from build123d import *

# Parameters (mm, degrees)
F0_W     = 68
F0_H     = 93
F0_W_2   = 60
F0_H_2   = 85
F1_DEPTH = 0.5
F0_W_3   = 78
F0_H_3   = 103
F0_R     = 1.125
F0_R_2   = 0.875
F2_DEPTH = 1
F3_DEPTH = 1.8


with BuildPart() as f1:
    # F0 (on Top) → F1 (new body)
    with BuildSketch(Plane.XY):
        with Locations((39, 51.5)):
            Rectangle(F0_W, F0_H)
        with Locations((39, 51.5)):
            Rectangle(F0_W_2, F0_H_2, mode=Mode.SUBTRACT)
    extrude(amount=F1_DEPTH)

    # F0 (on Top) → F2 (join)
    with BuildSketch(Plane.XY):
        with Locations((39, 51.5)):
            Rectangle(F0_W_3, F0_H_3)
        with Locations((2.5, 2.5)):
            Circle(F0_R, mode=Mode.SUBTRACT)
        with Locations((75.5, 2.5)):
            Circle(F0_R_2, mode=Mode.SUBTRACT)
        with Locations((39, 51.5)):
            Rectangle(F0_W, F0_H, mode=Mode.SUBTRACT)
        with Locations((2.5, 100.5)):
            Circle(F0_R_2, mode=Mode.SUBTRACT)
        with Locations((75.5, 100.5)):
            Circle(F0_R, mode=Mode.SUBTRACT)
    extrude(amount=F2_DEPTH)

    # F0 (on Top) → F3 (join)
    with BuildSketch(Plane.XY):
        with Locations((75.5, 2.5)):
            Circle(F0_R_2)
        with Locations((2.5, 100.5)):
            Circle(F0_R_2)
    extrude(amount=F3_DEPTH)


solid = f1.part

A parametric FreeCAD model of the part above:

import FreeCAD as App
import Part
import Sketcher
from FreeCAD import Vector
Q = App.Units.Quantity


def add_polygon(sketch, points):
    """Adds a closed chain of lines whose ends are joined by coincident constraints."""
    first, n = sketch.GeometryCount, len(points)
    for a, b in zip(points, points[1:] + points[:1]):
        sketch.addGeometry(Part.LineSegment(App.Vector(*a, 0), App.Vector(*b, 0)), False)
    for i in range(n):
        sketch.addConstraint(Sketcher.Constraint("Coincident", first + i, 2, first + (i + 1) % n, 1))

doc = App.newDocument("Part")
params = doc.addObject("Spreadsheet::Sheet", "Params")
for row, (alias, value) in enumerate([
    ("sketch1_width", "68 mm"),
    ("sketch1_width2", "60 mm"),
    ("sketch1_height", "93 mm"),
    ("sketch1_height2", "85 mm"),
    ("pad1_length", "0.5 mm"),
    ("sketch2_diameter", "2.25 mm"),
    ("sketch2_diameter2", "1.75 mm"),
    ("sketch2_width", "78 mm"),
    ("sketch2_width2", "68 mm"),
    ("sketch2_height", "103 mm"),
    ("pad2_length", "1 mm"),
    ("sketch3_diameter", "1.75 mm"),
    ("pad3_length", "1.8 mm"),
], start=1):
    params.set(f"A{row}", alias)
    params.set(f"B{row}", "=" + value)
    params.setAlias(f"B{row}", alias)

body = doc.addObject("PartDesign::Body", "Body")

# Sketch on XY plane
sketch1 = body.newObject("Sketcher::SketchObject", "Sketch")
sketch1.AttachmentSupport = (doc.getObject("XY_Plane"), [""])
sketch1.MapMode = "FlatFace"
add_polygon(sketch1, [(5, 98), (5, 5), (73, 5), (73, 98)])  # lines 0-3
add_polygon(sketch1, [(69, 9), (9, 9), (9, 94), (69, 94)])  # lines 4-7
sketch1.addConstraint(Sketcher.Constraint("Vertical", 0))
sketch1.addConstraint(Sketcher.Constraint("Horizontal", 1))
sketch1.addConstraint(Sketcher.Constraint("Vertical", 2))
sketch1.addConstraint(Sketcher.Constraint("Horizontal", 3))
sketch1.addConstraint(Sketcher.Constraint("Horizontal", 4))
sketch1.addConstraint(Sketcher.Constraint("Vertical", 5))
sketch1.addConstraint(Sketcher.Constraint("Horizontal", 6))
sketch1.addConstraint(Sketcher.Constraint("Vertical", 7))
sketch1.addConstraint(Sketcher.Constraint("DistanceX", 1, 1, 1, 2, Q("68 mm")))
sketch1.addConstraint(Sketcher.Constraint("DistanceX", 4, 2, 4, 1, Q("60 mm")))
sketch1.addConstraint(Sketcher.Constraint("DistanceY", 0, 2, 0, 1, Q("93 mm")))
sketch1.addConstraint(Sketcher.Constraint("DistanceY", 5, 1, 5, 2, Q("85 mm")))
sketch1.addConstraint(Sketcher.Constraint("DistanceX", -1, 1, 0, 2, Q("5 mm")))
sketch1.addConstraint(Sketcher.Constraint("DistanceY", -1, 1, 0, 2, Q("5 mm")))
sketch1.addConstraint(Sketcher.Constraint("DistanceX", -1, 1, 4, 2, Q("9 mm")))
sketch1.addConstraint(Sketcher.Constraint("DistanceY", -1, 1, 4, 2, Q("9 mm")))
sketch1.setExpression("Constraints[16]", "Params.sketch1_width")
sketch1.setExpression("Constraints[17]", "Params.sketch1_width2")
sketch1.setExpression("Constraints[18]", "Params.sketch1_height")
sketch1.setExpression("Constraints[19]", "Params.sketch1_height2")
pad1 = body.newObject("PartDesign::Pad", "Pad")
pad1.Profile = sketch1
pad1.setExpression("Length", "Params.pad1_length")

# Sketch on XY plane
sketch2 = body.newObject("Sketcher::SketchObject", "Sketch001")
sketch2.AttachmentSupport = (doc.getObject("XY_Plane"), [""])
sketch2.MapMode = "FlatFace"
add_polygon(sketch2, [(0, 103), (0, 0), (78, 0), (78, 103)])  # lines 0-3
sketch2.addGeometry(Part.Circle(Vector(2.5, 2.5, 0), Vector(0, 0, 1), 1.125), False)  # 4
sketch2.addGeometry(Part.Circle(Vector(75.5, 2.5, 0), Vector(0, 0, 1), 0.875), False)  # 5
sketch2.addGeometry(Part.Circle(Vector(2.5, 100.5, 0), Vector(0, 0, 1), 0.875), False)  # 6
add_polygon(sketch2, [(73, 5), (5, 5), (5, 98), (73, 98)])  # lines 7-10
sketch2.addGeometry(Part.Circle(Vector(75.5, 100.5, 0), Vector(0, 0, 1), 1.125), False)  # 11
sketch2.addConstraint(Sketcher.Constraint("Vertical", 0))
sketch2.addConstraint(Sketcher.Constraint("Horizontal", 1))
sketch2.addConstraint(Sketcher.Constraint("Vertical", 2))
sketch2.addConstraint(Sketcher.Constraint("Horizontal", 3))
sketch2.addConstraint(Sketcher.Constraint("Horizontal", 7))
sketch2.addConstraint(Sketcher.Constraint("Vertical", 8))
sketch2.addConstraint(Sketcher.Constraint("Horizontal", 9))
sketch2.addConstraint(Sketcher.Constraint("Vertical", 10))
sketch2.addConstraint(Sketcher.Constraint("Coincident", 0, 2, -1, 1))
sketch2.addConstraint(Sketcher.Constraint("Equal", 5, 6))
sketch2.addConstraint(Sketcher.Constraint("Equal", 4, 11))
sketch2.addConstraint(Sketcher.Constraint("Horizontal", 4, 3, 5, 3))
sketch2.addConstraint(Sketcher.Constraint("Horizontal", 6, 3, 11, 3))
sketch2.addConstraint(Sketcher.Constraint("Vertical", 4, 3, 6, 3))
sketch2.addConstraint(Sketcher.Constraint("Vertical", 5, 3, 11, 3))
sketch2.addConstraint(Sketcher.Constraint("Diameter", 4, Q("2.25 mm")))
sketch2.addConstraint(Sketcher.Constraint("Diameter", 5, Q("1.75 mm")))
sketch2.addConstraint(Sketcher.Constraint("DistanceX", 1, 1, 1, 2, Q("78 mm")))
sketch2.addConstraint(Sketcher.Constraint("DistanceX", 7, 2, 7, 1, Q("68 mm")))
sketch2.addConstraint(Sketcher.Constraint("DistanceY", 0, 2, 0, 1, Q("103 mm")))
sketch2.addConstraint(Sketcher.Constraint("DistanceY", 8, 1, 8, 2, Q("93 mm")))
sketch2.addConstraint(Sketcher.Constraint("DistanceX", -1, 1, 7, 2, Q("5 mm")))
sketch2.addConstraint(Sketcher.Constraint("DistanceY", -1, 1, 7, 2, Q("5 mm")))
sketch2.addConstraint(Sketcher.Constraint("DistanceX", 4, 3, 5, 3, Q("73 mm")))
sketch2.addConstraint(Sketcher.Constraint("DistanceY", 4, 3, 6, 3, Q("98 mm")))
sketch2.addConstraint(Sketcher.Constraint("DistanceX", -1, 1, 4, 3, Q("2.5 mm")))
sketch2.addConstraint(Sketcher.Constraint("DistanceY", -1, 1, 4, 3, Q("2.5 mm")))
sketch2.setExpression("Constraints[23]", "Params.sketch2_diameter")
sketch2.setExpression("Constraints[24]", "Params.sketch2_diameter2")
sketch2.setExpression("Constraints[25]", "Params.sketch2_width")
sketch2.setExpression("Constraints[26]", "Params.sketch2_width2")
sketch2.setExpression("Constraints[27]", "Params.sketch2_height")
pad2 = body.newObject("PartDesign::Pad", "Pad001")
pad2.Profile = sketch2
pad2.setExpression("Length", "Params.pad2_length")

# Sketch on XY plane
sketch3 = body.newObject("Sketcher::SketchObject", "Sketch002")
sketch3.AttachmentSupport = (doc.getObject("XY_Plane"), [""])
sketch3.MapMode = "FlatFace"
sketch3.addGeometry(Part.Circle(Vector(75.5, 2.5, 0), Vector(0, 0, 1), 0.875), False)
sketch3.addGeometry(Part.Circle(Vector(2.5, 100.5, 0), Vector(0, 0, 1), 0.875), False)
sketch3.addConstraint(Sketcher.Constraint("Equal", 0, 1))
sketch3.addConstraint(Sketcher.Constraint("Diameter", 0, Q("1.75 mm")))
sketch3.addConstraint(Sketcher.Constraint("DistanceX", 1, 3, 0, 3, Q("73 mm")))
sketch3.addConstraint(Sketcher.Constraint("DistanceY", 0, 3, 1, 3, Q("98 mm")))
sketch3.addConstraint(Sketcher.Constraint("DistanceX", -1, 1, 0, 3, Q("75.5 mm")))
sketch3.addConstraint(Sketcher.Constraint("DistanceY", -1, 1, 0, 3, Q("2.5 mm")))
sketch3.setExpression("Constraints[1]", "Params.sketch3_diameter")
pad3 = body.newObject("PartDesign::Pad", "Pad002")
pad3.Profile = sketch3
pad3.setExpression("Length", "Params.pad3_length")

doc.recompute()
